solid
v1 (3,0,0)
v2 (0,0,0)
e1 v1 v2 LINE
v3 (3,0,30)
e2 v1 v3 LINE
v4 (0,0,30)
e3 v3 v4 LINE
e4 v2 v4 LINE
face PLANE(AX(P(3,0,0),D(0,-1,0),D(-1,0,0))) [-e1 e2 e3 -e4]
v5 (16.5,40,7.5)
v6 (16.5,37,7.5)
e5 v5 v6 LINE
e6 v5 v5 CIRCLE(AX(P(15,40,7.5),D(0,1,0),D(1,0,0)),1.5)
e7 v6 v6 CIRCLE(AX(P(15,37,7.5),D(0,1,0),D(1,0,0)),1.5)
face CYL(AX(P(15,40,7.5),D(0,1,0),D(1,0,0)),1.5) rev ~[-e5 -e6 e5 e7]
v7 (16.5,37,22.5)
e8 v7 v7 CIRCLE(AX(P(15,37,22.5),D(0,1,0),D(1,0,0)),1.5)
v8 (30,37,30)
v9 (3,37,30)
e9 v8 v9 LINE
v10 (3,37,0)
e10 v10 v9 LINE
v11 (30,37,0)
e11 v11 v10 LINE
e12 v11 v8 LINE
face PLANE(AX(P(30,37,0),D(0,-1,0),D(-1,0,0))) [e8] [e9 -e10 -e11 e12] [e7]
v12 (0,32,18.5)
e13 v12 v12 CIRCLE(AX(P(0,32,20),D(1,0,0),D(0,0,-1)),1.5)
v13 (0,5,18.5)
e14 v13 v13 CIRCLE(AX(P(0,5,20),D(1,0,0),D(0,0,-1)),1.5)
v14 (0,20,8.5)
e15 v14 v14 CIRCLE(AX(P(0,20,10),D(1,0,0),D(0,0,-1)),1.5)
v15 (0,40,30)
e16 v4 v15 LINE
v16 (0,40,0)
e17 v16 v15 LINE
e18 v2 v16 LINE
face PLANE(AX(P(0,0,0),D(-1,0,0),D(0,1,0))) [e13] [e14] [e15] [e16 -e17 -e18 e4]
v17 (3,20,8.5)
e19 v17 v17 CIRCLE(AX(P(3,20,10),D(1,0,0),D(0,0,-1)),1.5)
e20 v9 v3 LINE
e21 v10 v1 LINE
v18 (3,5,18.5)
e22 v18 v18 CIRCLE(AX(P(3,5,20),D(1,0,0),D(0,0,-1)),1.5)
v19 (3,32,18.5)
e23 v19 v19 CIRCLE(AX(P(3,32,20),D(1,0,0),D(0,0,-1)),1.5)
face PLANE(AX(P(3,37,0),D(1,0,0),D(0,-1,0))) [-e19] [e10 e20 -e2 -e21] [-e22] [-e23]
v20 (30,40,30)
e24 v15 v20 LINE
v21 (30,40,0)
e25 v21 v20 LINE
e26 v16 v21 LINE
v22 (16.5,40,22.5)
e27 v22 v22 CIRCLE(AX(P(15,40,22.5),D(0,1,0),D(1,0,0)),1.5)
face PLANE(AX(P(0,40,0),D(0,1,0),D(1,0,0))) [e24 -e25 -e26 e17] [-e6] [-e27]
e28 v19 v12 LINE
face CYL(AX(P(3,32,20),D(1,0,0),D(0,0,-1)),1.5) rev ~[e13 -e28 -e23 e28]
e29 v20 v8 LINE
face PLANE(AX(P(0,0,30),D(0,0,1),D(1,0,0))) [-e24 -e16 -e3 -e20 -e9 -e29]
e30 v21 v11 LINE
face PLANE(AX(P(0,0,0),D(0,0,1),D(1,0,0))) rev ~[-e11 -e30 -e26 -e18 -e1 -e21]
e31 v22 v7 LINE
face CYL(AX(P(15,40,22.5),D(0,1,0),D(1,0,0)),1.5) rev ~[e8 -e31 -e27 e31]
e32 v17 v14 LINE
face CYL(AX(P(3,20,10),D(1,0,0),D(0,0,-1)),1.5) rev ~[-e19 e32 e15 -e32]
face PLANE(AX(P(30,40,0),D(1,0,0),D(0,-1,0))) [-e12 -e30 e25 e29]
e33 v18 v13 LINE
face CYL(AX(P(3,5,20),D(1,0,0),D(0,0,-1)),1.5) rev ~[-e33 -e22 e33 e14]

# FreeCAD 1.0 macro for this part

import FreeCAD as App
import Part
import Sketcher
from FreeCAD import Vector
Q = App.Units.Quantity


def add_polygon(sketch, points):
    """Adds a closed chain of lines whose ends are joined by coincident constraints."""
    first, n = sketch.GeometryCount, len(points)
    for a, b in zip(points, points[1:] + points[:1]):
        sketch.addGeometry(Part.LineSegment(App.Vector(*a, 0), App.Vector(*b, 0)), False)
    for i in range(n):
        sketch.addConstraint(Sketcher.Constraint("Coincident", first + i, 2, first + (i + 1) % n, 1))

doc = App.newDocument("Part")
params = doc.addObject("Spreadsheet::Sheet", "Params")
for row, (alias, value) in enumerate([
    ("sketch1_width", "1.063 in"),
    ("pad1_length", "1.1811024 in"),
    ("pocket1_length", "1.1811024 in"),
    ("pocket2_length", "1.1811024 in"),
    ("pad2_length", "0.1181102 in"),
    ("pocket3_length", "0.1181102 in"),
], start=1):
    params.set(f"A{row}", alias)
    params.set(f"B{row}", "=" + value)
    params.setAlias(f"B{row}", alias)

body = doc.addObject("PartDesign::Body", "Body")

# Sketch on XY plane
sketch1 = doc.addObject("Sketcher::SketchObject", "Sketch")
body.addObject(sketch1)
sketch1.AttachmentSupport = (doc.XY_Plane, [""])
sketch1.MapMode = "FlatFace"
add_polygon(sketch1, [(0, 40), (0, 0), (3, 0), (3, 37), (30, 37), (30, 40)])  # lines 0-5
sketch1.addConstraint(Sketcher.Constraint("Vertical", 0))
sketch1.addConstraint(Sketcher.Constraint("Horizontal", 1))
sketch1.addConstraint(Sketcher.Constraint("Vertical", 2))
sketch1.addConstraint(Sketcher.Constraint("Horizontal", 3))
sketch1.addConstraint(Sketcher.Constraint("Vertical", 4))
sketch1.addConstraint(Sketcher.Constraint("Horizontal", 5))
sketch1.addConstraint(Sketcher.Constraint("Coincident", 0, 2, -1, 1))
sketch1.addConstraint(Sketcher.Constraint("Equal", 1, 4))
sketch1.addConstraint(Sketcher.Constraint("DistanceX", 3, 1, 3, 2, Q("1.063 in")))
sketch1.addConstraint(Sketcher.Constraint("DistanceX", 1, 1, 1, 2, Q("0.1181 in")))
sketch1.addConstraint(Sketcher.Constraint("DistanceY", 0, 2, 0, 1, Q("1.5748 in")))
sketch1.setExpression("Constraints[14]", "Params.sketch1_width")
pad1 = doc.addObject("PartDesign::Pad", "Pad")
body.addObject(pad1)
pad1.Profile = sketch1
pad1.setExpression("Length", "Params.pad1_length")

# Sketch on YZ plane
sketch2 = doc.addObject("Sketcher::SketchObject", "Sketch001")
body.addObject(sketch2)
sketch2.AttachmentSupport = (doc.YZ_Plane, [""])
sketch2.MapMode = "FlatFace"
sketch2.AttachmentOffset = App.Placement(Vector(0, 0, 0.1181102 * 25.4), App.Rotation())
sketch2.addGeometry(Part.Circle(Vector(32, 20, 0), Vector(0, 0, 1), 1.5), False)
sketch2.addGeometry(Part.Circle(Vector(5, 20, 0), Vector(0, 0, 1), 1.5), False)
sketch2.addGeometry(Part.Circle(Vector(20, 10, 0), Vector(0, 0, 1), 1.5), False)
sketch2.addConstraint(Sketcher.Constraint("Equal", 0, 1))
sketch2.addConstraint(Sketcher.Constraint("Equal", 1, 2))
sketch2.addConstraint(Sketcher.Constraint("Horizontal", 0, 3, 1, 3))
sketch2.addConstraint(Sketcher.Constraint("Diameter", 0, Q("0.1181 in")))
sketch2.addConstraint(Sketcher.Constraint("DistanceX", 1, 3, 0, 3, Q("1.063 in")))
sketch2.addConstraint(Sketcher.Constraint("DistanceY", -1, 1, 0, 3, Q("0.7874 in")))
sketch2.addConstraint(Sketcher.Constraint("DistanceX", -1, 1, 2, 3, Q("0.7874 in")))
sketch2.addConstraint(Sketcher.Constraint("DistanceY", -1, 1, 2, 3, Q("0.3937 in")))
sketch2.addConstraint(Sketcher.Constraint("DistanceX", -1, 1, 0, 3, Q("32 mm")))
pocket1 = doc.addObject("PartDesign::Pocket", "Pocket")
body.addObject(pocket1)
pocket1.Profile = sketch2
pocket1.setExpression("Length", "Params.pocket1_length")

# Sketch on XZ plane
sketch3 = doc.addObject("Sketcher::SketchObject", "Sketch002")
body.addObject(sketch3)
sketch3.AttachmentSupport = (doc.XZ_Plane, [""])
sketch3.MapMode = "FlatFace"
sketch3.AttachmentOffset = App.Placement(Vector(0, 0, -1.5748031 * 25.4), App.Rotation())
sketch3.addGeometry(Part.Circle(Vector(15, 15, 0), Vector(0, 0, 1), 1.5), False)
sketch3.addConstraint(Sketcher.Constraint("Diameter", 0, Q("0.1181 in")))
sketch3.addConstraint(Sketcher.Constraint("DistanceX", -1, 1, 0, 3, Q("15 mm")))
sketch3.addConstraint(Sketcher.Constraint("DistanceY", -1, 1, 0, 3, Q("15 mm")))
pocket2 = doc.addObject("PartDesign::Pocket", "Pocket001")
body.addObject(pocket2)
pocket2.Profile = sketch3
pocket2.setExpression("Length", "Params.pocket2_length")
pocket2.Reversed = True

# Sketch on XZ plane
sketch4 = doc.addObject("Sketcher::SketchObject", "Sketch003")
body.addObject(sketch4)
sketch4.AttachmentSupport = (doc.XZ_Plane, [""])
sketch4.MapMode = "FlatFace"
sketch4.AttachmentOffset = App.Placement(Vector(0, 0, -1.5748031 * 25.4), App.Rotation())
sketch4.addGeometry(Part.Circle(Vector(15, 15, 0), Vector(0, 0, 1), 1.5), False)
sketch4.addConstraint(Sketcher.Constraint("Diameter", 0, Q("0.1181 in")))
sketch4.addConstraint(Sketcher.Constraint("DistanceX", -1, 1, 0, 3, Q("15 mm")))
sketch4.addConstraint(Sketcher.Constraint("DistanceY", -1, 1, 0, 3, Q("15 mm")))
pad2 = doc.addObject("PartDesign::Pad", "Pad001")
body.addObject(pad2)
pad2.Profile = sketch4
pad2.setExpression("Length", "Params.pad2_length")

# Sketch on XZ plane
sketch5 = doc.addObject("Sketcher::SketchObject", "Sketch004")
body.addObject(sketch5)
sketch5.AttachmentSupport = (doc.XZ_Plane, [""])
sketch5.MapMode = "FlatFace"
sketch5.AttachmentOffset = App.Placement(Vector(0, 0, -1.5748031 * 25.4), App.Rotation())
sketch5.addGeometry(Part.Circle(Vector(15, 22.5, 0), Vector(0, 0, 1), 1.5), False)
sketch5.addGeometry(Part.Circle(Vector(15, 7.5, 0), Vector(0, 0, 1), 1.5), False)
sketch5.addConstraint(Sketcher.Constraint("Equal", 0, 1))
sketch5.addConstraint(Sketcher.Constraint("Vertical", 0, 3, 1, 3))
sketch5.addConstraint(Sketcher.Constraint("Diameter", 0, Q("0.1181 in")))
sketch5.addConstraint(Sketcher.Constraint("DistanceX", -1, 1, 0, 3, Q("15 mm")))
sketch5.addConstraint(Sketcher.Constraint("DistanceY", -1, 1, 0, 3, Q("22.5 mm")))
sketch5.addConstraint(Sketcher.Constraint("DistanceY", -1, 1, 1, 3, Q("7.5 mm")))
pocket3 = doc.addObject("PartDesign::Pocket", "Pocket002")
body.addObject(pocket3)
pocket3.Profile = sketch5
pocket3.setExpression("Length", "Params.pocket3_length")
pocket3.Reversed = True

doc.recompute()
